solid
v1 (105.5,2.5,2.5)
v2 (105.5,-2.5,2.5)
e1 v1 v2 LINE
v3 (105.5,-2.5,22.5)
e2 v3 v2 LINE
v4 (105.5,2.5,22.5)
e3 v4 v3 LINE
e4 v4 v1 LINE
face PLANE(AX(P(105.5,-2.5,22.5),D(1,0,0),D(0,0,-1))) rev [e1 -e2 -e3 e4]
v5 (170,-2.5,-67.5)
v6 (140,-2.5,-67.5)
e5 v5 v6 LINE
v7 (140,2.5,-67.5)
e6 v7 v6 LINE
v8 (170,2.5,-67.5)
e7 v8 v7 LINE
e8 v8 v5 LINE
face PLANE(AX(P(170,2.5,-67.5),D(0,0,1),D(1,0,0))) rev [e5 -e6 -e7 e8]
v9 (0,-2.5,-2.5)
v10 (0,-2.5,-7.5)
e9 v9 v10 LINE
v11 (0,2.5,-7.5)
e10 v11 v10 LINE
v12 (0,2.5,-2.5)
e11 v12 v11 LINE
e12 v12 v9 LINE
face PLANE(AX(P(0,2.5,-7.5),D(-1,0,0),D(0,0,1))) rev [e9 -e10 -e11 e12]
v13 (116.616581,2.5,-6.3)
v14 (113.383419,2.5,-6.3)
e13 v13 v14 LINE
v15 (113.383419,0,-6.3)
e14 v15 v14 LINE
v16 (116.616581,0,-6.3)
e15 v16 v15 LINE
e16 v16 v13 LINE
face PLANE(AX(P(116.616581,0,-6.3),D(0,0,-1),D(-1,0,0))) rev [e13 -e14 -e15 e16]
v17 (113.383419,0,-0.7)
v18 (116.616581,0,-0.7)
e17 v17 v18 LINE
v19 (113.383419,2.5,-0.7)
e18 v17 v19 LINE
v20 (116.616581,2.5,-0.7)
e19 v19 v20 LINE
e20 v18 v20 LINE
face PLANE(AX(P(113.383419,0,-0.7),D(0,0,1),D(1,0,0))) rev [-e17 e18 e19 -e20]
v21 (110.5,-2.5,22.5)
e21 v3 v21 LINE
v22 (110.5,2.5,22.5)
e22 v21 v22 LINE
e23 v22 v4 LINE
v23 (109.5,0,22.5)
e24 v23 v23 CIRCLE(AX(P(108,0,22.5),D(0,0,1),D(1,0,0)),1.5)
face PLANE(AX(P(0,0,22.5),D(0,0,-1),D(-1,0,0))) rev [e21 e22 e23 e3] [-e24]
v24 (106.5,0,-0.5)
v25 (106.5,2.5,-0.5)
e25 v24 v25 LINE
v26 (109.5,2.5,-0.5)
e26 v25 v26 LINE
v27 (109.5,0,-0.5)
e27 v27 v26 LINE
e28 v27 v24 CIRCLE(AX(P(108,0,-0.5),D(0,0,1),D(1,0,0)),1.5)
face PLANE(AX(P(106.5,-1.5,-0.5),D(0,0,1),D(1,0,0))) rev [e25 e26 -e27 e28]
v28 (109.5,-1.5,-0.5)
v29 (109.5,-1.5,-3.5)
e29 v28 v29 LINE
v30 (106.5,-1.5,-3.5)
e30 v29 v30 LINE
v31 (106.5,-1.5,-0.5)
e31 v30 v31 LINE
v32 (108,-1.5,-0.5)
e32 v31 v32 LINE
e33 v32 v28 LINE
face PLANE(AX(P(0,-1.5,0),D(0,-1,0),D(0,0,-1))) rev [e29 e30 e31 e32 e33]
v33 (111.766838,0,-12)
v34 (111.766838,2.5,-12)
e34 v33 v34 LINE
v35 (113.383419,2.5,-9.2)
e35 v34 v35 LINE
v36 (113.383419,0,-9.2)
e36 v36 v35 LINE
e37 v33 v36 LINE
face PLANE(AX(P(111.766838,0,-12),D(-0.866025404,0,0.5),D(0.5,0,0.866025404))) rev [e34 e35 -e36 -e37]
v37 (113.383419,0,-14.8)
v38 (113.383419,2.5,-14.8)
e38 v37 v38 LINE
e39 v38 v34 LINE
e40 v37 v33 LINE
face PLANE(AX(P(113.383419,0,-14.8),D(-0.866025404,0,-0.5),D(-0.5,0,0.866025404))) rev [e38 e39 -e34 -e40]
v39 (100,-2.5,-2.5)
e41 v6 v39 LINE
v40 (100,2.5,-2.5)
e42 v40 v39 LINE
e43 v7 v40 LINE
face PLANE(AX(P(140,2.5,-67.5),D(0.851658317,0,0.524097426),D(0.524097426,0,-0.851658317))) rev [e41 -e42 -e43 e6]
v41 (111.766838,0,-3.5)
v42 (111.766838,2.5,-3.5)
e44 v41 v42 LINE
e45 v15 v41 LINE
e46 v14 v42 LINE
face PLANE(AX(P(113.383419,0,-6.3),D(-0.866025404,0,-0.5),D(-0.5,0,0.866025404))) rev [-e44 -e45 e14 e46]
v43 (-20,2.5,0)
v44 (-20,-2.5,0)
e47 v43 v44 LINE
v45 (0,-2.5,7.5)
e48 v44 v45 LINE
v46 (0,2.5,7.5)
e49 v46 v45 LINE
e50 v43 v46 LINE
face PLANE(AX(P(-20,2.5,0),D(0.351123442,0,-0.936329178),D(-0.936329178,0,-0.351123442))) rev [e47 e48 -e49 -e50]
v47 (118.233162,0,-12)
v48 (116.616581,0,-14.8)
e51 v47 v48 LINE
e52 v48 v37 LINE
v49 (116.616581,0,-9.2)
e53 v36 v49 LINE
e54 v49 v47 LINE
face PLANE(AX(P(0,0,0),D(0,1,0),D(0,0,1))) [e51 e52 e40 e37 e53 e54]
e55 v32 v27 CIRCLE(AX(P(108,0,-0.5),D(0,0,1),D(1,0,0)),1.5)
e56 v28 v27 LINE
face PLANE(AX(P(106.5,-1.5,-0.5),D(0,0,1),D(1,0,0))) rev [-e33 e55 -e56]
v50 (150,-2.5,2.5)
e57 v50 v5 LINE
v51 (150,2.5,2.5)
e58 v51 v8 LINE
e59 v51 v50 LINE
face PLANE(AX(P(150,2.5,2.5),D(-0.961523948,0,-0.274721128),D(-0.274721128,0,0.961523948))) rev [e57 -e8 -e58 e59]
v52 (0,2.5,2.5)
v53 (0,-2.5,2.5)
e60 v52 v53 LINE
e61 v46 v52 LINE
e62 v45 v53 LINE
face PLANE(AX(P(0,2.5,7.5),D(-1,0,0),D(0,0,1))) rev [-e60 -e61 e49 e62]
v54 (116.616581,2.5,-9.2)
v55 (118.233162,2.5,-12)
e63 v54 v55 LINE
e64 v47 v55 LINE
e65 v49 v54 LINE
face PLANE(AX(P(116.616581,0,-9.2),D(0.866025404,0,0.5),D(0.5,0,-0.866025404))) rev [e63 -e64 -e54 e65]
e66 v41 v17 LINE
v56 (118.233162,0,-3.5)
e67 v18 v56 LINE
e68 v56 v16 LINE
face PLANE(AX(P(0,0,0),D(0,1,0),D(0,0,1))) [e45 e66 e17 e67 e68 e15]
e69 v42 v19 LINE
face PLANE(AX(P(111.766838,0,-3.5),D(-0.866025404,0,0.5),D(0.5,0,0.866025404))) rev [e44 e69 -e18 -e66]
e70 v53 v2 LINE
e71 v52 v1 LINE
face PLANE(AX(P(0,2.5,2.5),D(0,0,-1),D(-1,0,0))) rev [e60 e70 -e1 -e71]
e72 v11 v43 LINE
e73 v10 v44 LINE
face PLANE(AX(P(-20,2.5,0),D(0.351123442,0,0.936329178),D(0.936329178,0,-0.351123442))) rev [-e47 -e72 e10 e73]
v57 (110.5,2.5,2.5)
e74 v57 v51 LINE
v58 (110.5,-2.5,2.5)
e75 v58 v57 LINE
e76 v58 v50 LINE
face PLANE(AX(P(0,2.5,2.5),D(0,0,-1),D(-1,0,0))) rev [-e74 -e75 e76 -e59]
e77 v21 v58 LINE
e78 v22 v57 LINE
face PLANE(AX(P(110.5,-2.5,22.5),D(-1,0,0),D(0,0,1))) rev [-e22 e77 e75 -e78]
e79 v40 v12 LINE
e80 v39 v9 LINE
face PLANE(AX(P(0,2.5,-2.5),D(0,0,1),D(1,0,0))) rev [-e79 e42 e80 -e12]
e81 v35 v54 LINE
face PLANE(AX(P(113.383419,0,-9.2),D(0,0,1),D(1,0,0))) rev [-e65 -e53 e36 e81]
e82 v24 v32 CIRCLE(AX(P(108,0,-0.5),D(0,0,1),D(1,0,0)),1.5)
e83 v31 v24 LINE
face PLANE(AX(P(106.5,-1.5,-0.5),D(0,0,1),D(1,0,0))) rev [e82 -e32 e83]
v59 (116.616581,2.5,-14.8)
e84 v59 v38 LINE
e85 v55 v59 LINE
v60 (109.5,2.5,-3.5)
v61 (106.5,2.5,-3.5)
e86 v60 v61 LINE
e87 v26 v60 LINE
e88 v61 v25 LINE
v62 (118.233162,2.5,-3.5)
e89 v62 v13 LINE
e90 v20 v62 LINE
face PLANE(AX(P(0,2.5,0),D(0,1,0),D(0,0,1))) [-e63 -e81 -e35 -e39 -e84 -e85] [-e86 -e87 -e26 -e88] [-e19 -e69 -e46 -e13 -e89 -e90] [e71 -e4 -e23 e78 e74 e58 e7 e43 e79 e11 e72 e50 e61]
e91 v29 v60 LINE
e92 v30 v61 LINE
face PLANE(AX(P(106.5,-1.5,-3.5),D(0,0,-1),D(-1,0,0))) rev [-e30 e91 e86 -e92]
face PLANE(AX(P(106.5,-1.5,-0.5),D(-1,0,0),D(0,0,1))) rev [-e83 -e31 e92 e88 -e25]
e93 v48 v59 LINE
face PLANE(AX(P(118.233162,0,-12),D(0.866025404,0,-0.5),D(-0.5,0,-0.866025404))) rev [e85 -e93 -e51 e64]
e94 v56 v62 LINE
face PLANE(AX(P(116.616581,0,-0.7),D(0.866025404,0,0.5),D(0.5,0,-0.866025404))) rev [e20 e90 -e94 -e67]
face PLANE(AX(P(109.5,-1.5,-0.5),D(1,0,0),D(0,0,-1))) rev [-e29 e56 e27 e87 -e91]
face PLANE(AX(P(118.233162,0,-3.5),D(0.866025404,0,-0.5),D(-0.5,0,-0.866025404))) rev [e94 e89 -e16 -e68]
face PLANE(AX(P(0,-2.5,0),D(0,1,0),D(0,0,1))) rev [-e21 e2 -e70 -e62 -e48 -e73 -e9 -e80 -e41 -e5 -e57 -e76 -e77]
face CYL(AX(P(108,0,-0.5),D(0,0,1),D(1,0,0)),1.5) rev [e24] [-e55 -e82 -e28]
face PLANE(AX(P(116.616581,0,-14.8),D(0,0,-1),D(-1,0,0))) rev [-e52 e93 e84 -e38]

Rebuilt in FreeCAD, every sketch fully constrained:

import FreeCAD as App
import Part
import Sketcher
Q = App.Units.Quantity

doc = App.newDocument("Part")
params = doc.addObject("Spreadsheet::Sheet", "Params")
for row, (alias, value) in enumerate([
    ("sketch1_width", "150 mm"),
    ("sketch1_width2", "30 mm"),
    ("sketch1_width3", "100 mm"),
    ("sketch1_height", "5 mm"),
    ("pad1_length", "5 mm"),
    ("pocket1_length", "2.5 mm"),
    ("sketch3_width", "5 mm"),
    ("pad2_length", "20 mm"),
    ("sketch4_diameter", "3 mm"),
    ("pocket2_length", "23 mm"),
    ("sketch5_width", "3 mm"),
    ("pocket3_length", "4 mm"),
], start=1):
    params.set(f"A{row}", alias)
    params.set(f"B{row}", "=" + value)
    params.setAlias(f"B{row}", alias)

body = doc.addObject("PartDesign::Body", "Body")

# Sketch on XZ plane
sketch1 = body.newObject("Sketcher::SketchObject", "Sketch")
sketch1.AttachmentSupport = (doc.getObject("XZ_Plane"), [""])
sketch1.MapMode = "FlatFace"
sketch1.addGeometry(Part.LineSegment(App.Vector(0, -7.5, 0), App.Vector(-20, 0, 0)), False)
sketch1.addGeometry(Part.LineSegment(App.Vector(-20, 0, 0), App.Vector(0, 7.5, 0)), False)
sketch1.addGeometry(Part.LineSegment(App.Vector(0, 7.5, 0), App.Vector(0, 2.5, 0)), False)
sketch1.addGeometry(Part.LineSegment(App.Vector(0, 2.5, 0), App.Vector(150, 2.5, 0)), False)
sketch1.addGeometry(Part.LineSegment(App.Vector(150, 2.5, 0), App.Vector(170, -67.5, 0)), False)
sketch1.addGeometry(Part.LineSegment(App.Vector(170, -67.5, 0), App.Vector(140, -67.5, 0)), False)
sketch1.addGeometry(Part.LineSegment(App.Vector(140, -67.5, 0), App.Vector(100, -2.5, 0)), False)
sketch1.addGeometry(Part.LineSegment(App.Vector(100, -2.5, 0), App.Vector(0, -2.5, 0)), False)
sketch1.addGeometry(Part.LineSegment(App.Vector(0, -2.5, 0), App.Vector(0, -7.5, 0)), False)
sketch1.addConstraint(Sketcher.Constraint("Coincident", 0, 2, 1, 1))
sketch1.addConstraint(Sketcher.Constraint("Coincident", 1, 2, 2, 1))
sketch1.addConstraint(Sketcher.Constraint("Coincident", 2, 2, 3, 1))
sketch1.addConstraint(Sketcher.Constraint("Coincident", 3, 2, 4, 1))
sketch1.addConstraint(Sketcher.Constraint("Coincident", 4, 2, 5, 1))
sketch1.addConstraint(Sketcher.Constraint("Coincident", 5, 2, 6, 1))
sketch1.addConstraint(Sketcher.Constraint("Coincident", 6, 2, 7, 1))
sketch1.addConstraint(Sketcher.Constraint("Coincident", 7, 2, 8, 1))
sketch1.addConstraint(Sketcher.Constraint("Coincident", 8, 2, 0, 1))
sketch1.addConstraint(Sketcher.Constraint("Vertical", 2))
sketch1.addConstraint(Sketcher.Constraint("Horizontal", 3))
sketch1.addConstraint(Sketcher.Constraint("Horizontal", 5))
sketch1.addConstraint(Sketcher.Constraint("Horizontal", 7))
sketch1.addConstraint(Sketcher.Constraint("Vertical", 8))
sketch1.addConstraint(Sketcher.Constraint("Symmetric", 2, 2, 7, 2, -1, 1))
sketch1.addConstraint(Sketcher.Constraint("Symmetric", 1, 2, 8, 2, -1))
sketch1.addConstraint(Sketcher.Constraint("PointOnObject", 0, 2, -1))
sketch1.addConstraint(Sketcher.Constraint("DistanceX", 3, 1, 3, 2, Q("150 mm")))
sketch1.addConstraint(Sketcher.Constraint("DistanceX", 5, 2, 5, 1, Q("30 mm")))
sketch1.addConstraint(Sketcher.Constraint("DistanceX", 7, 2, 7, 1, Q("100 mm")))
sketch1.addConstraint(Sketcher.Constraint("DistanceY", 2, 2, 2, 1, Q("5 mm")))
sketch1.addConstraint(Sketcher.Constraint("DistanceX", 0, 2, -1, 1, Q("20 mm")))
sketch1.addConstraint(Sketcher.Constraint("DistanceX", -1, 1, 4, 2, Q("170 mm")))
sketch1.addConstraint(Sketcher.Constraint("DistanceY", 4, 2, 3, 2, Q("70 mm")))
sketch1.addConstraint(Sketcher.Constraint("DistanceY", 6, 2, 3, 2, Q("5 mm")))
sketch1.setExpression("Constraints[17]", "Params.sketch1_width")
sketch1.setExpression("Constraints[18]", "Params.sketch1_width2")
sketch1.setExpression("Constraints[19]", "Params.sketch1_width3")
sketch1.setExpression("Constraints[20]", "Params.sketch1_height")
pad1 = body.newObject("PartDesign::Pad", "Pad")
pad1.Profile = sketch1
pad1.setExpression("Length", "Params.pad1_length")
pad1.Midplane = True

# Sketch on XZ plane
sketch2 = body.newObject("Sketcher::SketchObject", "Sketch001")
sketch2.AttachmentSupport = (doc.getObject("XZ_Plane"), [""])
sketch2.MapMode = "FlatFace"
sketch2.AttachmentOffset = App.Placement(App.Vector(0, 0, -2.5), App.Rotation())
sketch2.addGeometry(Part.LineSegment(App.Vector(118.233162, -12, 0), App.Vector(116.616581, -14.8, 0)), False)
sketch2.addGeometry(Part.LineSegment(App.Vector(116.616581, -14.8, 0), App.Vector(113.383419, -14.8, 0)), False)
sketch2.addGeometry(Part.LineSegment(App.Vector(113.383419, -14.8, 0), App.Vector(111.766838, -12, 0)), False)
sketch2.addGeometry(Part.LineSegment(App.Vector(111.766838, -12, 0), App.Vector(113.383419, -9.2, 0)), False)
sketch2.addGeometry(Part.LineSegment(App.Vector(113.383419, -9.2, 0), App.Vector(116.616581, -9.2, 0)), False)
sketch2.addGeometry(Part.LineSegment(App.Vector(116.616581, -9.2, 0), App.Vector(118.233162, -12, 0)), False)
sketch2.addGeometry(Part.LineSegment(App.Vector(118.233162, -3.5, 0), App.Vector(116.616581, -6.3, 0)), False)
sketch2.addGeometry(Part.LineSegment(App.Vector(116.616581, -6.3, 0), App.Vector(113.383419, -6.3, 0)), False)
sketch2.addGeometry(Part.LineSegment(App.Vector(113.383419, -6.3, 0), App.Vector(111.766838, -3.5, 0)), False)
sketch2.addGeometry(Part.LineSegment(App.Vector(111.766838, -3.5, 0), App.Vector(113.383419, -0.7, 0)), False)
sketch2.addGeometry(Part.LineSegment(App.Vector(113.383419, -0.7, 0), App.Vector(116.616581, -0.7, 0)), False)
sketch2.addGeometry(Part.LineSegment(App.Vector(116.616581, -0.7, 0), App.Vector(118.233162, -3.5, 0)), False)
sketch2.addConstraint(Sketcher.Constraint("Coincident", 0, 2, 1, 1))
sketch2.addConstraint(Sketcher.Constraint("Coincident", 1, 2, 2, 1))
sketch2.addConstraint(Sketcher.Constraint("Coincident", 2, 2, 3, 1))
sketch2.addConstraint(Sketcher.Constraint("Coincident", 3, 2, 4, 1))
sketch2.addConstraint(Sketcher.Constraint("Coincident", 4, 2, 5, 1))
sketch2.addConstraint(Sketcher.Constraint("Coincident", 5, 2, 0, 1))
sketch2.addConstraint(Sketcher.Constraint("Coincident", 6, 2, 7, 1))
sketch2.addConstraint(Sketcher.Constraint("Coincident", 7, 2, 8, 1))
sketch2.addConstraint(Sketcher.Constraint("Coincident", 8, 2, 9, 1))
sketch2.addConstraint(Sketcher.Constraint("Coincident", 9, 2, 10, 1))
sketch2.addConstraint(Sketcher.Constraint("Coincident", 10, 2, 11, 1))
sketch2.addConstraint(Sketcher.Constraint("Coincident", 11, 2, 6, 1))
sketch2.addConstraint(Sketcher.Constraint("Horizontal", 1))
sketch2.addConstraint(Sketcher.Constraint("Horizontal", 4))
sketch2.addConstraint(Sketcher.Constraint("Horizontal", 7))
sketch2.addConstraint(Sketcher.Constraint("Horizontal", 10))
sketch2.addConstraint(Sketcher.Constraint("Parallel", 0, 3))
sketch2.addConstraint(Sketcher.Constraint("Parallel", 2, 5))
sketch2.addConstraint(Sketcher.Constraint("Parallel", 3, 6))
sketch2.addConstraint(Sketcher.Constraint("Parallel", 5, 8))
sketch2.addConstraint(Sketcher.Constraint("Parallel", 6, 9))
sketch2.addConstraint(Sketcher.Constraint("Parallel", 8, 11))
sketch2.addConstraint(Sketcher.Constraint("Horizontal", 2, 2, 5, 2))
sketch2.addConstraint(Sketcher.Constraint("Horizontal", 8, 2, 11, 2))
sketch2.addConstraint(Sketcher.Constraint("Vertical", 1, 2, 3, 2))
sketch2.addConstraint(Sketcher.Constraint("Vertical", 0, 2, 4, 2))
sketch2.addConstraint(Sketcher.Constraint("Vertical", 4, 2, 6, 2))
sketch2.addConstraint(Sketcher.Constraint("Vertical", 3, 2, 7, 2))
sketch2.addConstraint(Sketcher.Constraint("Vertical", 2, 2, 8, 2))
sketch2.addConstraint(Sketcher.Constraint("Vertical", 7, 2, 9, 2))
sketch2.addConstraint(Sketcher.Constraint("Angle", 0, Q("-120 deg")))
sketch2.addConstraint(Sketcher.Constraint("DistanceY", 2, 2, -1, 1, Q("12 mm")))
sketch2.addConstraint(Sketcher.Constraint("DistanceY", 0, 2, -1, 1, Q("14.8 mm")))
sketch2.addConstraint(Sketcher.Constraint("DistanceY", 6, 2, -1, 1, Q("6.3 mm")))
sketch2.addConstraint(Sketcher.Constraint("DistanceX", 1, 2, 1, 1, Q("3.233162 mm")))
sketch2.addConstraint(Sketcher.Constraint("DistanceX", -1, 1, 0, 2, Q("116.616581 mm")))
pocket1 = body.newObject("PartDesign::Pocket", "Pocket")
pocket1.Profile = sketch2
pocket1.setExpression("Length", "Params.pocket1_length")
pocket1.Reversed = True

# Sketch on XY plane
sketch3 = body.newObject("Sketcher::SketchObject", "Sketch002")
sketch3.AttachmentSupport = (doc.getObject("XY_Plane"), [""])
sketch3.MapMode = "FlatFace"
sketch3.AttachmentOffset = App.Placement(App.Vector(0, 0, 2.5), App.Rotation())
sketch3.addGeometry(Part.LineSegment(App.Vector(105.5, 2.5, 0), App.Vector(105.5, -2.5, 0)), False)
sketch3.addGeometry(Part.LineSegment(App.Vector(105.5, -2.5, 0), App.Vector(110.5, -2.5, 0)), False)
sketch3.addGeometry(Part.LineSegment(App.Vector(110.5, -2.5, 0), App.Vector(110.5, 2.5, 0)), False)
sketch3.addGeometry(Part.LineSegment(App.Vector(110.5, 2.5, 0), App.Vector(105.5, 2.5, 0)), False)
sketch3.addConstraint(Sketcher.Constraint("Coincident", 0, 2, 1, 1))
sketch3.addConstraint(Sketcher.Constraint("Coincident", 1, 2, 2, 1))
sketch3.addConstraint(Sketcher.Constraint("Coincident", 2, 2, 3, 1))
sketch3.addConstraint(Sketcher.Constraint("Coincident", 3, 2, 0, 1))
sketch3.addConstraint(Sketcher.Constraint("Vertical", 0))
sketch3.addConstraint(Sketcher.Constraint("Horizontal", 1))
sketch3.addConstraint(Sketcher.Constraint("Vertical", 2))
sketch3.addConstraint(Sketcher.Constraint("Horizontal", 3))
sketch3.addConstraint(Sketcher.Constraint("Equal", 3, 0))
sketch3.addConstraint(Sketcher.Constraint("DistanceX", 1, 1, 1, 2, Q("5 mm")))
sketch3.addConstraint(Sketcher.Constraint("DistanceX", -1, 1, 0, 2, Q("105.5 mm")))
sketch3.addConstraint(Sketcher.Constraint("DistanceY", 0, 2, -1, 1, Q("2.5 mm")))
sketch3.setExpression("Constraints[9]", "Params.sketch3_width")
pad2 = body.newObject("PartDesign::Pad", "Pad001")
pad2.Profile = sketch3
pad2.setExpression("Length", "Params.pad2_length")

# Sketch on XY plane
sketch4 = body.newObject("Sketcher::SketchObject", "Sketch003")
sketch4.AttachmentSupport = (doc.getObject("XY_Plane"), [""])
sketch4.MapMode = "FlatFace"
sketch4.AttachmentOffset = App.Placement(App.Vector(0, 0, 22.5), App.Rotation())
sketch4.addGeometry(Part.Circle(App.Vector(108, 0, 0), App.Vector(0, 0, 1), 1.5), False)
sketch4.addConstraint(Sketcher.Constraint("PointOnObject", 0, 3, -1))
sketch4.addConstraint(Sketcher.Constraint("Diameter", 0, Q("3 mm")))
sketch4.addConstraint(Sketcher.Constraint("DistanceX", -1, 1, 0, 3, Q("108 mm")))
sketch4.setExpression("Constraints[1]", "Params.sketch4_diameter")
pocket2 = body.newObject("PartDesign::Pocket", "Pocket001")
pocket2.Profile = sketch4
pocket2.setExpression("Length", "Params.pocket2_length")

# Sketch on XZ plane
sketch5 = body.newObject("Sketcher::SketchObject", "Sketch004")
sketch5.AttachmentSupport = (doc.getObject("XZ_Plane"), [""])
sketch5.MapMode = "FlatFace"
sketch5.AttachmentOffset = App.Placement(App.Vector(0, 0, -2.5), App.Rotation())
sketch5.addGeometry(Part.LineSegment(App.Vector(106.5, -3.5, 0), App.Vector(106.5, -0.5, 0)), False)
sketch5.addGeometry(Part.LineSegment(App.Vector(106.5, -0.5, 0), App.Vector(109.5, -0.5, 0)), False)
sketch5.addGeometry(Part.LineSegment(App.Vector(109.5, -0.5, 0), App.Vector(109.5, -3.5, 0)), False)
sketch5.addGeometry(Part.LineSegment(App.Vector(109.5, -3.5, 0), App.Vector(106.5, -3.5, 0)), False)
sketch5.addConstraint(Sketcher.Constraint("Coincident", 0, 2, 1, 1))
sketch5.addConstraint(Sketcher.Constraint("Coincident", 1, 2, 2, 1))
sketch5.addConstraint(Sketcher.Constraint("Coincident", 2, 2, 3, 1))
sketch5.addConstraint(Sketcher.Constraint("Coincident", 3, 2, 0, 1))
sketch5.addConstraint(Sketcher.Constraint("Vertical", 0))
sketch5.addConstraint(Sketcher.Constraint("Horizontal", 1))
sketch5.addConstraint(Sketcher.Constraint("Vertical", 2))
sketch5.addConstraint(Sketcher.Constraint("Horizontal", 3))
sketch5.addConstraint(Sketcher.Constraint("Equal", 3, 0))
sketch5.addConstraint(Sketcher.Constraint("DistanceX", 1, 1, 1, 2, Q("3 mm")))
sketch5.addConstraint(Sketcher.Constraint("DistanceX", -1, 1, 0, 2, Q("106.5 mm")))
sketch5.addConstraint(Sketcher.Constraint("DistanceY", 0, 2, -1, 1, Q("0.5 mm")))
sketch5.setExpression("Constraints[9]", "Params.sketch5_width")
pocket3 = body.newObject("PartDesign::Pocket", "Pocket002")
pocket3.Profile = sketch5
pocket3.setExpression("Length", "Params.pocket3_length")
pocket3.Reversed = True

doc.recompute()
